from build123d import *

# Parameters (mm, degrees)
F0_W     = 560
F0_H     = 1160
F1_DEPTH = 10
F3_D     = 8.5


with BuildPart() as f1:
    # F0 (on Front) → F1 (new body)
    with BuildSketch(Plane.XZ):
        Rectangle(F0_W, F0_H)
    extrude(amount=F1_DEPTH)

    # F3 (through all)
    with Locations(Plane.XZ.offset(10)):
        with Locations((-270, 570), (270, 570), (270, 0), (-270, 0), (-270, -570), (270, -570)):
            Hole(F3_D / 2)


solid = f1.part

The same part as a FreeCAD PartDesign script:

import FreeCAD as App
import Part
import Sketcher

V = App.Vector

doc = App.newDocument("Part")
body = doc.addObject("PartDesign::Body", "Body")

# Sketch on XZ plane
sketch1 = body.newObject("Sketcher::SketchObject", "Sketch")
sketch1.AttachmentSupport = (doc.getObject("XZ_Plane"), [""])
sketch1.MapMode = "FlatFace"
sketch1.addGeometry([
    Part.LineSegment(V(-280, 580, 0), V(-280, -580, 0)),
    Part.LineSegment(V(-280, -580, 0), V(280, -580, 0)),
    Part.LineSegment(V(280, -580, 0), V(280, 580, 0)),
    Part.LineSegment(V(280, 580, 0), V(-280, 580, 0)),
], False)
sketch1.addConstraint([
    Sketcher.Constraint("Coincident", 0, 2, 1, 1),
    Sketcher.Constraint("Coincident", 1, 2, 2, 1),
    Sketcher.Constraint("Coincident", 2, 2, 3, 1),
    Sketcher.Constraint("Coincident", 3, 2, 0, 1),
    Sketcher.Constraint("Vertical", 0),
    Sketcher.Constraint("Horizontal", 1),
    Sketcher.Constraint("Vertical", 2),
    Sketcher.Constraint("Horizontal", 3),
    Sketcher.Constraint("Symmetric", 0, 2, 2, 2, -1, 1),
    Sketcher.Constraint("DistanceX", 1, 1, 1, 2, 560.0),
    Sketcher.Constraint("DistanceY", 0, 2, 0, 1, 1160.0),
])
pad1 = body.newObject("PartDesign::Pad", "Pad")
pad1.Profile = sketch1
pad1.Length = 10

# Sketch on XZ plane
sketch2 = body.newObject("Sketcher::SketchObject", "Sketch001")
sketch2.AttachmentSupport = (doc.getObject("XZ_Plane"), [""])
sketch2.MapMode = "FlatFace"
sketch2.AttachmentOffset = App.Placement(V(0, 0, 10), App.Rotation())
sketch2.addGeometry([
    Part.Circle(V(-270, 570, 0), V(0, 0, 1), 4.25),  # 0
    Part.Circle(V(270, 570, 0), V(0, 0, 1), 4.25),  # 1
    Part.Circle(V(270, 0, 0), V(0, 0, 1), 4.25),  # 2
    Part.Circle(V(-270, 0, 0), V(0, 0, 1), 4.25),  # 3
    Part.Circle(V(-270, -570, 0), V(0, 0, 1), 4.25),  # 4
    Part.Circle(V(270, -570, 0), V(0, 0, 1), 4.25),  # 5
], False)
sketch2.addConstraint([
    Sketcher.Constraint("Equal", 0, 1),
    Sketcher.Constraint("Equal", 1, 2),
    Sketcher.Constraint("Equal", 2, 3),
    Sketcher.Constraint("Equal", 3, 4),
    Sketcher.Constraint("Equal", 4, 5),
    Sketcher.Constraint("Symmetric", 2, 3, 3, 3, -1, 1),
    Sketcher.Constraint("Symmetric", 1, 3, 4, 3, -1, 1),
    Sketcher.Constraint("Symmetric", 0, 3, 5, 3, -1, 1),
    Sketcher.Constraint("Symmetric", 0, 3, 1, 3, -2),
    Sketcher.Constraint("PointOnObject", 2, 3, -1),
    Sketcher.Constraint("Vertical", 1, 3, 2, 3),
    Sketcher.Constraint("Diameter", 0, 8.5),
    Sketcher.Constraint("DistanceX", 0, 3, -1, 1, 270.0),
    Sketcher.Constraint("DistanceY", -1, 1, 0, 3, 570.0),
])
doc.recompute()
hole = body.newObject("PartDesign::Hole", "Hole")
hole.Profile = sketch2
hole.ThreadType = "None"
hole.Diameter = 8.5
hole.DepthType = "ThroughAll"

doc.recompute()
